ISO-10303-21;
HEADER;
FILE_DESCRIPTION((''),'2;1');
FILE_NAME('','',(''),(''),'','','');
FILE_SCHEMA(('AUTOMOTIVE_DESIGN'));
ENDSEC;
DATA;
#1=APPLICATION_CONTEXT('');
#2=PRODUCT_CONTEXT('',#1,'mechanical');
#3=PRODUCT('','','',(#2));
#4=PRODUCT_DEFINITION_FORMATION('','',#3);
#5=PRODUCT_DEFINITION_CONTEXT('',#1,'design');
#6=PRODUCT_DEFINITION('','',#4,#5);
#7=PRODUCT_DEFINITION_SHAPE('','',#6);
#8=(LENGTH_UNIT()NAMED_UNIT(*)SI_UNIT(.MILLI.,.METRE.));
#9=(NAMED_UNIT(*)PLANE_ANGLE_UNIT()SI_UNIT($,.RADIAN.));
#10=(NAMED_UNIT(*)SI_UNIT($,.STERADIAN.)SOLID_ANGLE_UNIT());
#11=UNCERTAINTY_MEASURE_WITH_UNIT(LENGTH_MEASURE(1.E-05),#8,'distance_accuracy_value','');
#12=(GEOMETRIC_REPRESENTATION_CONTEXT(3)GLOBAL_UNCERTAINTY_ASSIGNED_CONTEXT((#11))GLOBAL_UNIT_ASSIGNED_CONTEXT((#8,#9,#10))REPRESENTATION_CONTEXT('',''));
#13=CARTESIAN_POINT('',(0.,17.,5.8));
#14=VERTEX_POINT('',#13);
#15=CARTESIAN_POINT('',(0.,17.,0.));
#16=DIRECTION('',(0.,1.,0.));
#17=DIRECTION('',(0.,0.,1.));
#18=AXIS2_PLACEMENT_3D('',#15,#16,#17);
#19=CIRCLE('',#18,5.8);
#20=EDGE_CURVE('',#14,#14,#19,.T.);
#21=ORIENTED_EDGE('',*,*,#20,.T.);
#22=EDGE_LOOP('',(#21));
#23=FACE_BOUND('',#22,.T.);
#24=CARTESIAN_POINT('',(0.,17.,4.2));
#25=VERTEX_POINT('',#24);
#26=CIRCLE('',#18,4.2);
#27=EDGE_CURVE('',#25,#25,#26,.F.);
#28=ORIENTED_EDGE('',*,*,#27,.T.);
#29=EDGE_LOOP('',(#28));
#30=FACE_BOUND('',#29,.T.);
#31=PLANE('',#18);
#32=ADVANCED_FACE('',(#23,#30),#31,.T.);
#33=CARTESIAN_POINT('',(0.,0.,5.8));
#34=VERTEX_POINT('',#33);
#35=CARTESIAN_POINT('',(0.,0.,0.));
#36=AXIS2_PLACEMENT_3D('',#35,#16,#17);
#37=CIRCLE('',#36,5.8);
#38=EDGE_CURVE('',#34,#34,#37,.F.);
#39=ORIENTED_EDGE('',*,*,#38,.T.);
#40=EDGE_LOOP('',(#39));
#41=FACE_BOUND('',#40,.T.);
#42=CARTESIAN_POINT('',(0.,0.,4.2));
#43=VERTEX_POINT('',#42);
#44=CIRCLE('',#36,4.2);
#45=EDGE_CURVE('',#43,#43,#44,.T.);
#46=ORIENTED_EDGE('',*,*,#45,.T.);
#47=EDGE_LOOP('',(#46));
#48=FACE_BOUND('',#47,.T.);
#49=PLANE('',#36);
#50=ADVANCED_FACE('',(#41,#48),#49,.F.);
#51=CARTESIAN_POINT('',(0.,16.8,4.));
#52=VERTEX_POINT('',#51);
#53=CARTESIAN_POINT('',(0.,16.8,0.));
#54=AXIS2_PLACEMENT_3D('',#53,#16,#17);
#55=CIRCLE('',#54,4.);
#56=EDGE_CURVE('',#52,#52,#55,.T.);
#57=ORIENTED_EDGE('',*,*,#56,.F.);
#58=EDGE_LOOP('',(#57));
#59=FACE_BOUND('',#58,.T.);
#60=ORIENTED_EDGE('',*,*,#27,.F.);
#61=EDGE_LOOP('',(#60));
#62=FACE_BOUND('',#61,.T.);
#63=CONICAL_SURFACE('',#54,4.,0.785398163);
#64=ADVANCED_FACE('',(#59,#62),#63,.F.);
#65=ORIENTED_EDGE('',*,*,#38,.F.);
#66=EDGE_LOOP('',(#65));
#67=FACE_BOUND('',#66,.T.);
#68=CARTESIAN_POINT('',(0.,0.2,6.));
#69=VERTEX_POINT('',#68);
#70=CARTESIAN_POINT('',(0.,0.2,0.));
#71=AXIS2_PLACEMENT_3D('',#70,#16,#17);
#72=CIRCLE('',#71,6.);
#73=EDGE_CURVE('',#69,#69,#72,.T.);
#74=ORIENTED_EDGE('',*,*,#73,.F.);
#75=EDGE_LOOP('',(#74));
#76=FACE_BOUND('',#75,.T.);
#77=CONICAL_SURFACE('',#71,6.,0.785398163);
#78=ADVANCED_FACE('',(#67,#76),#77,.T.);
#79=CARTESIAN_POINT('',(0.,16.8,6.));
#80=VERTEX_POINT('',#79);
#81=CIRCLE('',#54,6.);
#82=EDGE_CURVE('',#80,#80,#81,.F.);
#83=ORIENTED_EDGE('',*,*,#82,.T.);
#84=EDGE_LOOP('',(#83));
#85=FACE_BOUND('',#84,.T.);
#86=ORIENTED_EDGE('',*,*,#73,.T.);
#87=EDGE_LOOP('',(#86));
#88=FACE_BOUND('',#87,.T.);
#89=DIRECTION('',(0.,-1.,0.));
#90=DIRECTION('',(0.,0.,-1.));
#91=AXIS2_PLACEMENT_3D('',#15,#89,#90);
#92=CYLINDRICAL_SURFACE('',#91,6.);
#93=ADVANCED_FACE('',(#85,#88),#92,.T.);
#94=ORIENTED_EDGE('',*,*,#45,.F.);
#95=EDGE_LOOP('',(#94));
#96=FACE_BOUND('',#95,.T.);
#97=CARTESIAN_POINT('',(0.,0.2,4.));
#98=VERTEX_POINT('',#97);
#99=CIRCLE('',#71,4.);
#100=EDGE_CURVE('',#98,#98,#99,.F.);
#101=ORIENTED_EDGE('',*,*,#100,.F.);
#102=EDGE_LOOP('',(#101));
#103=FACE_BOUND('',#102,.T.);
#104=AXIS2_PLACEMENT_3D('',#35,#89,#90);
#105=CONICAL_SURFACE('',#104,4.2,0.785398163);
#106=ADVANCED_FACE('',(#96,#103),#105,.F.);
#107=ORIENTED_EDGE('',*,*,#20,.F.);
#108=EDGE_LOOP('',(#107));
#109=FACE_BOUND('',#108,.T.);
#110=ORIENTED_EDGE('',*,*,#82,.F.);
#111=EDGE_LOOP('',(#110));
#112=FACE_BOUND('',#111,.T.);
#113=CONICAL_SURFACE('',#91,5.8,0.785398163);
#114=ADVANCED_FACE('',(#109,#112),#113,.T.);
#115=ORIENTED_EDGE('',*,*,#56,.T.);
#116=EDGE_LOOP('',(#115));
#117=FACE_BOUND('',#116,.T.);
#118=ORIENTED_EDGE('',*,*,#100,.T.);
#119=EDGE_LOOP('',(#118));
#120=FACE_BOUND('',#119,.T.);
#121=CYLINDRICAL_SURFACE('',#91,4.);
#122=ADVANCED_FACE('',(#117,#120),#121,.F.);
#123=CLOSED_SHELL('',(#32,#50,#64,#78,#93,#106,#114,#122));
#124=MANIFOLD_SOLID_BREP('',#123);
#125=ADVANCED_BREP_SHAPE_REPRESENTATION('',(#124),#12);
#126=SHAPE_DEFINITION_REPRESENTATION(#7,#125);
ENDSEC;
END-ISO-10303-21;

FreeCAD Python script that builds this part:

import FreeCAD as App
import Part
import Sketcher

V = App.Vector
Q = App.Units.Quantity


def edges_at(feature, points):
    """Names of the edges that pass closest to the given points."""
    edges = feature.Shape.Edges
    near = lambda p: min(range(len(edges)), key=lambda i: edges[i].distToShape(Part.Vertex(*p))[0])
    return sorted({f"Edge{near(p) + 1}" for p in points})

doc = App.newDocument("Part")
params = doc.addObject("Spreadsheet::Sheet", "Params")
for row, (alias, value) in enumerate([
    ("sketch1_diameter", "12 mm"),
    ("sketch1_diameter2", "8 mm"),
    ("pad1_length", "17 mm"),
    ("chamfer_size", "0.2 mm"),
], start=1):
    params.set(f"A{row}", alias)
    params.set(f"B{row}", "=" + value)
    params.setAlias(f"B{row}", alias)

body = doc.addObject("PartDesign::Body", "Body")

# Sketch on XZ plane
sketch1 = body.newObject("Sketcher::SketchObject", "Sketch")
sketch1.AttachmentSupport = (doc.getObject("XZ_Plane"), [""])
sketch1.MapMode = "FlatFace"
sketch1.addGeometry(Part.Circle(V(0, 0, 0), V(0, 0, 1), 6), False)
sketch1.addGeometry(Part.Circle(V(0, 0, 0), V(0, 0, 1), 4), False)
sketch1.addConstraint(Sketcher.Constraint("Coincident", 0, 3, -1, 1))
sketch1.addConstraint(Sketcher.Constraint("Coincident", 1, 3, -1, 1))
sketch1.addConstraint(Sketcher.Constraint("Diameter", 0, Q("12 mm")))
sketch1.addConstraint(Sketcher.Constraint("Diameter", 1, Q("8 mm")))
sketch1.setExpression("Constraints[2]", "Params.sketch1_diameter")
sketch1.setExpression("Constraints[3]", "Params.sketch1_diameter2")
pad1 = body.newObject("PartDesign::Pad", "Pad")
pad1.Profile = sketch1
pad1.setExpression("Length", "Params.pad1_length")
pad1.Reversed = True
doc.recompute()

chamfer = body.newObject("PartDesign::Chamfer", "Chamfer")
chamfer.Base = (pad1, edges_at(pad1, [
    (0, 0, -6),
    (0, 17, -6),
    (0, 0, -4),
    (0, 17, -4),
]))
chamfer.setExpression("Size", "Params.chamfer_size")

doc.recompute()
